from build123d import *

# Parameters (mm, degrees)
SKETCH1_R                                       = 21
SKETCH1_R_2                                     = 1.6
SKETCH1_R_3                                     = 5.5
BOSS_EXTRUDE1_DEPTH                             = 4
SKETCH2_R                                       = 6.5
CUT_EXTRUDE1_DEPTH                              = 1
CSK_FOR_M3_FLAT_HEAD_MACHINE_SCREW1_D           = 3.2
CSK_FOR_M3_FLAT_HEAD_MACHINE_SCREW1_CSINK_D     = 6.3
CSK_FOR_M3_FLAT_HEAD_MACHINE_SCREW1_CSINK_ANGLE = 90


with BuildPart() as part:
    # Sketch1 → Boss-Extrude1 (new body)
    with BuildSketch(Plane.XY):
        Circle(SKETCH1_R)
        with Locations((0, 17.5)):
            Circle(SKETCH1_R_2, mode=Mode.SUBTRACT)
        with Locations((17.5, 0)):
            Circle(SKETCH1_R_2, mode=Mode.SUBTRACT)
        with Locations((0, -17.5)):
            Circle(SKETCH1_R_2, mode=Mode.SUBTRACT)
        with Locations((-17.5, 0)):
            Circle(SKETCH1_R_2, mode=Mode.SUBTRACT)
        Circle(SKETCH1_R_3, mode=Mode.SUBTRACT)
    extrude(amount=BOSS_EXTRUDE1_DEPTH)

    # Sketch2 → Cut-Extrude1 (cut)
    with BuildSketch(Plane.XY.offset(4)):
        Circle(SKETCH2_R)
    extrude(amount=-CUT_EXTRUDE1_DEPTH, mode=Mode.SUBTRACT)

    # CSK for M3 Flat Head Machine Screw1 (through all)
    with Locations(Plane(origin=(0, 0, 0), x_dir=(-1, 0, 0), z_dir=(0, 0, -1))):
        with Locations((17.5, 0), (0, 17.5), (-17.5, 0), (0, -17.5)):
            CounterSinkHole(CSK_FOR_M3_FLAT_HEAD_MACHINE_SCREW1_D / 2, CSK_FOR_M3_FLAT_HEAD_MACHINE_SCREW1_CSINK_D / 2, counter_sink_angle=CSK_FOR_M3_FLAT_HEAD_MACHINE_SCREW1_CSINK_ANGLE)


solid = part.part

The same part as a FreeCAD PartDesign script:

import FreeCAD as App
import Part
import Sketcher
Q = App.Units.Quantity

doc = App.newDocument("Part")
params = doc.addObject("Spreadsheet::Sheet", "Params")
for row, (alias, value) in enumerate([
    ("sketch1_diameter", "42 mm"),
    ("sketch1_diameter2", "11 mm"),
    ("sketch1_diameter3", "3.2 mm"),
    ("pad1_length", "4 mm"),
    ("sketch2_diameter", "13 mm"),
    ("pocket1_length", "1 mm"),
    ("sketch3_diameter", "3.2 mm"),
    ("hole_diameter", "3.2 mm"),
    ("hole_csink_diameter", "6.3 mm"),
], start=1):
    params.set(f"A{row}", alias)
    params.set(f"B{row}", "=" + value)
    params.setAlias(f"B{row}", alias)

body = doc.addObject("PartDesign::Body", "Body")

sketch1 = body.newObject("Sketcher::SketchObject", "Sketch")
sketch1.AttachmentSupport = (doc.getObject("XY_Plane"), [""])
sketch1.MapMode = "FlatFace"
sketch1.addGeometry([
    Part.Circle(App.Vector(0, 0, 0), App.Vector(0, 0, 1), 21),
    Part.Circle(App.Vector(0, -17.5, 0), App.Vector(0, 0, 1), 1.6),
    Part.Circle(App.Vector(-17.5, 0, 0), App.Vector(0, 0, 1), 1.6),
    Part.Circle(App.Vector(0, 0, 0), App.Vector(0, 0, 1), 5.5),
    Part.Circle(App.Vector(17.5, 0, 0), App.Vector(0, 0, 1), 1.6),
    Part.Circle(App.Vector(0, 17.5, 0), App.Vector(0, 0, 1), 1.6),
], False)
sketch1.addConstraint([
    Sketcher.Constraint("Coincident", 0, 3, -1, 1),
    Sketcher.Constraint("Coincident", 3, 3, -1, 1),
    Sketcher.Constraint("Equal", 1, 2),
    Sketcher.Constraint("Equal", 2, 4),
    Sketcher.Constraint("Equal", 4, 5),
    Sketcher.Constraint("Symmetric", 2, 3, 4, 3, -1, 1),
    Sketcher.Constraint("Symmetric", 1, 3, 5, 3, -1, 1),
    Sketcher.Constraint("PointOnObject", 1, 3, -2),
    Sketcher.Constraint("PointOnObject", 2, 3, -1),
    Sketcher.Constraint("Diameter", 0, Q("42 mm")),
    Sketcher.Constraint("Diameter", 3, Q("11 mm")),
    Sketcher.Constraint("Diameter", 1, Q("3.2 mm")),
    Sketcher.Constraint("DistanceX", 2, 3, 4, 3, Q("35 mm")),
    Sketcher.Constraint("DistanceY", 1, 3, 5, 3, Q("35 mm")),
])
sketch1.setExpression("Constraints[9]", "Params.sketch1_diameter")
sketch1.setExpression("Constraints[10]", "Params.sketch1_diameter2")
sketch1.setExpression("Constraints[11]", "Params.sketch1_diameter3")
pad1 = body.newObject("PartDesign::Pad", "Pad")
pad1.Profile = sketch1
pad1.setExpression("Length", "Params.pad1_length")

sketch2 = body.newObject("Sketcher::SketchObject", "Sketch001")
sketch2.AttachmentSupport = (doc.getObject("XY_Plane"), [""])
sketch2.MapMode = "FlatFace"
sketch2.AttachmentOffset = App.Placement(App.Vector(0, 0, 4), App.Rotation())
sketch2.addGeometry(Part.Circle(App.Vector(0, 0, 0), App.Vector(0, 0, 1), 6), False)
sketch2.addConstraint([
    Sketcher.Constraint("Coincident", 0, 3, -1, 1),
    Sketcher.Constraint("Diameter", 0, Q("13 mm")),
])
sketch2.setExpression("Constraints[1]", "Params.sketch2_diameter")
pocket1 = body.newObject("PartDesign::Pocket", "Pocket")
pocket1.Profile = sketch2
pocket1.setExpression("Length", "Params.pocket1_length")

sketch3 = body.newObject("Sketcher::SketchObject", "Sketch002")
sketch3.AttachmentSupport = (doc.getObject("XY_Plane"), [""])
sketch3.MapMode = "FlatFace"
sketch3.addGeometry([
    Part.Circle(App.Vector(-17.5, 0, 0), App.Vector(0, 0, 1), 1.6),
    Part.Circle(App.Vector(0, 17.5, 0), App.Vector(0, 0, 1), 1.6),
    Part.Circle(App.Vector(17.5, 0, 0), App.Vector(0, 0, 1), 1.6),
    Part.Circle(App.Vector(0, -17.5, 0), App.Vector(0, 0, 1), 1.6),
], False)
sketch3.addConstraint([
    Sketcher.Constraint("Equal", 0, 1),
    Sketcher.Constraint("Equal", 1, 2),
    Sketcher.Constraint("Equal", 2, 3),
    Sketcher.Constraint("Symmetric", 0, 3, 2, 3, -1, 1),
    Sketcher.Constraint("Symmetric", 1, 3, 3, 3, -1, 1),
    Sketcher.Constraint("PointOnObject", 0, 3, -1),
    Sketcher.Constraint("PointOnObject", 1, 3, -2),
    Sketcher.Constraint("Diameter", 0, Q("3.2 mm")),
    Sketcher.Constraint("DistanceX", 0, 3, 2, 3, Q("35 mm")),
    Sketcher.Constraint("DistanceY", 3, 3, 1, 3, Q("35 mm")),
])
sketch3.setExpression("Constraints[7]", "Params.sketch3_diameter")
doc.recompute()
hole = body.newObject("PartDesign::Hole", "Hole")
hole.Profile = sketch3
hole.ThreadType = "None"
hole.setExpression("Diameter", "Params.hole_diameter")
hole.DepthType = "ThroughAll"
hole.HoleCutType = "Countersink"
hole.setExpression("HoleCutDiameter", "Params.hole_csink_diameter")
hole.HoleCutCountersinkAngle = 90
hole.Reversed = True

doc.recompute()
